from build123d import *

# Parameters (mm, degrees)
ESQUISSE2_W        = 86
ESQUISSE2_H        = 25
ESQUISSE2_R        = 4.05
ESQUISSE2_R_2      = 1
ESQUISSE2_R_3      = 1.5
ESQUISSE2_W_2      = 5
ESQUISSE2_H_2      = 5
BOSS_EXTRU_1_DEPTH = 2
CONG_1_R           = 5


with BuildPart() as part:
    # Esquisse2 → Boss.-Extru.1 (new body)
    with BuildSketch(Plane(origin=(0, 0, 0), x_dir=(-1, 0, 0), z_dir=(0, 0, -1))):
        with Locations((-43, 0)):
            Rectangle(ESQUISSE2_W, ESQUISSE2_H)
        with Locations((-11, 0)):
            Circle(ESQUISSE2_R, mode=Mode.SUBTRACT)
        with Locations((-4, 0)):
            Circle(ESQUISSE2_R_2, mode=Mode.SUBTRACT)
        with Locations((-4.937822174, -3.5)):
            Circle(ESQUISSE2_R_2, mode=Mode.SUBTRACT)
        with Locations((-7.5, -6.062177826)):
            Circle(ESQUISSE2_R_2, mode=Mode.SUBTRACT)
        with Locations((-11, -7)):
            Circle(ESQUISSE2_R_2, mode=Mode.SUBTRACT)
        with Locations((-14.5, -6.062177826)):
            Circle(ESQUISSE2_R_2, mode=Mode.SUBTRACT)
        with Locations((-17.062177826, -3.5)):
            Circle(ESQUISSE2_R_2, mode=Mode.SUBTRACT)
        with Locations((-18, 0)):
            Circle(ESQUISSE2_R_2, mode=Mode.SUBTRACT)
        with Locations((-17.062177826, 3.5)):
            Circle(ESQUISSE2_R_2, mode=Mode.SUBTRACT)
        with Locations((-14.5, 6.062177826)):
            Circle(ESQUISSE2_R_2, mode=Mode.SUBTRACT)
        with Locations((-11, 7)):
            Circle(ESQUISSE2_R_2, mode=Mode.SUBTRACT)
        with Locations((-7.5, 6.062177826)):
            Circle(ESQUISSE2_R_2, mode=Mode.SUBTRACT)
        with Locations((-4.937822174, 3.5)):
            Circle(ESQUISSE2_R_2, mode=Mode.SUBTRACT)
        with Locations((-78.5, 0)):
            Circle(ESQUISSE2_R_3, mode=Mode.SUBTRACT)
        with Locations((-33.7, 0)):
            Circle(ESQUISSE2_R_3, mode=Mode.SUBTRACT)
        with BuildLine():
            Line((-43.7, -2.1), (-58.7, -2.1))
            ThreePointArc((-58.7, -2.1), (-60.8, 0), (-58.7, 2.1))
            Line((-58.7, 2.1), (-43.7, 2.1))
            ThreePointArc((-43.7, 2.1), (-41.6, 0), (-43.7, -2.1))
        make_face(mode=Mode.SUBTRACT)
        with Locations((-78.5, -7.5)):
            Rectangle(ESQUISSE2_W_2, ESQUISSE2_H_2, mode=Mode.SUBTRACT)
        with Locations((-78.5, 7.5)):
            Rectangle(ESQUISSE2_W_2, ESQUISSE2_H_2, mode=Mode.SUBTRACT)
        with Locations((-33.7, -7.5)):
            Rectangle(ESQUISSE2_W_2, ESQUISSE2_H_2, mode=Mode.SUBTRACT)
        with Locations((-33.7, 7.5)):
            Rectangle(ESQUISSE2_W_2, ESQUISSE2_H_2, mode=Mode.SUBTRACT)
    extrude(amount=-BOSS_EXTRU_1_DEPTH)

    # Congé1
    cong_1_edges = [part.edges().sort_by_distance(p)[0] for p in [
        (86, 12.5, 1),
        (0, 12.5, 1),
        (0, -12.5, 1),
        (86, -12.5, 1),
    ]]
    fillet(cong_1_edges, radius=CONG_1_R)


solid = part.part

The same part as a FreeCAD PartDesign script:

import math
import FreeCAD as App
import Part
import Sketcher
from FreeCAD import Vector


def edges_at(feature, points):
    """Names of the edges that pass closest to the given points."""
    edges = feature.Shape.Edges
    near = lambda p: min(range(len(edges)), key=lambda i: edges[i].distToShape(Part.Vertex(*p))[0])
    return sorted({f"Edge{near(p) + 1}" for p in points})


def add_polygon(sketch, points):
    """Adds a closed chain of lines whose ends are joined by coincident constraints."""
    first, n = sketch.GeometryCount, len(points)
    for a, b in zip(points, points[1:] + points[:1]):
        sketch.addGeometry(Part.LineSegment(App.Vector(*a, 0), App.Vector(*b, 0)), False)
    for i in range(n):
        sketch.addConstraint(Sketcher.Constraint("Coincident", first + i, 2, first + (i + 1) % n, 1))

doc = App.newDocument("Part")
body = doc.addObject("PartDesign::Body", "Body")

# Sketch on XY plane
sketch1 = body.newObject("Sketcher::SketchObject", "Sketch")
sketch1.AttachmentSupport = (doc.getObject("XY_Plane"), [""])
sketch1.MapMode = "FlatFace"
add_polygon(sketch1, [(86, 12.5), (86, -12.5), (0, -12.5), (0, 12.5)])  # lines 0-3
add_polygon(sketch1, [(76, -10), (81, -10), (81, -5), (76, -5)])  # lines 4-7
add_polygon(sketch1, [(31.2, -10), (36.2, -10), (36.2, -5), (31.2, -5)])  # lines 8-11
sketch1.addGeometry(Part.Circle(Vector(14.5, -6.1, 0), Vector(0, 0, 1), 1), False)  # 12
sketch1.addGeometry(Part.Circle(Vector(11, -7, 0), Vector(0, 0, 1), 1), False)  # 13
sketch1.addGeometry(Part.Circle(Vector(7.5, -6.1, 0), Vector(0, 0, 1), 1), False)  # 14
sketch1.addGeometry(Part.Circle(Vector(17.1, -3.5, 0), Vector(0, 0, 1), 1), False)  # 15
sketch1.addGeometry(Part.Circle(Vector(4.9, -3.5, 0), Vector(0, 0, 1), 1), False)  # 16
sketch1.addGeometry(Part.Circle(Vector(78.5, 0, 0), Vector(0, 0, 1), 1.5), False)  # 17
sketch1.addGeometry(Part.ArcOfCircle(Part.Circle(Vector(43.7, 0, 0), Vector(0, 0, 1), 2.1), math.radians(90), math.radians(270)), False)  # 18
sketch1.addGeometry(Part.LineSegment(Vector(43.7, -2.1, 0), Vector(58.7, -2.1, 0)), False)  # 19
sketch1.addGeometry(Part.ArcOfCircle(Part.Circle(Vector(58.7, 0, 0), Vector(0, 0, 1), 2.1), math.radians(-90), math.radians(90)), False)  # 20
sketch1.addGeometry(Part.LineSegment(Vector(58.7, 2.1, 0), Vector(43.7, 2.1, 0)), False)  # 21
add_polygon(sketch1, [(76, 5), (81, 5), (81, 10), (76, 10)])  # lines 22-25
sketch1.addGeometry(Part.Circle(Vector(33.7, 0, 0), Vector(0, 0, 1), 1.5), False)  # 26
sketch1.addGeometry(Part.Circle(Vector(18, 0, 0), Vector(0, 0, 1), 1), False)  # 27
sketch1.addGeometry(Part.Circle(Vector(11, 0, 0), Vector(0, 0, 1), 4), False)  # 28
sketch1.addGeometry(Part.Circle(Vector(4, 0, 0), Vector(0, 0, 1), 1), False)  # 29
sketch1.addGeometry(Part.Circle(Vector(17.1, 3.5, 0), Vector(0, 0, 1), 1), False)  # 30
sketch1.addGeometry(Part.Circle(Vector(4.9, 3.5, 0), Vector(0, 0, 1), 1), False)  # 31
add_polygon(sketch1, [(31.2, 5), (36.2, 5), (36.2, 10), (31.2, 10)])  # lines 32-35
sketch1.addGeometry(Part.Circle(Vector(14.5, 6.1, 0), Vector(0, 0, 1), 1), False)  # 36
sketch1.addGeometry(Part.Circle(Vector(7.5, 6.1, 0), Vector(0, 0, 1), 1), False)  # 37
sketch1.addGeometry(Part.Circle(Vector(11, 7, 0), Vector(0, 0, 1), 1), False)  # 38
sketch1.addConstraint([
    Sketcher.Constraint("Tangent", 18, 2, 19, 1),
    Sketcher.Constraint("Tangent", 19, 2, 20, 1),
    Sketcher.Constraint("Tangent", 20, 2, 21, 1),
    Sketcher.Constraint("Tangent", 21, 2, 18, 1),
    Sketcher.Constraint("Vertical", 0),
    Sketcher.Constraint("Horizontal", 1),
    Sketcher.Constraint("Vertical", 2),
    Sketcher.Constraint("Horizontal", 3),
    Sketcher.Constraint("Horizontal", 4),
    Sketcher.Constraint("Vertical", 5),
    Sketcher.Constraint("Horizontal", 6),
    Sketcher.Constraint("Vertical", 7),
    Sketcher.Constraint("Horizontal", 8),
    Sketcher.Constraint("Vertical", 9),
    Sketcher.Constraint("Horizontal", 10),
    Sketcher.Constraint("Vertical", 11),
    Sketcher.Constraint("Horizontal", 19),
    Sketcher.Constraint("Horizontal", 21),
    Sketcher.Constraint("Horizontal", 22),
    Sketcher.Constraint("Vertical", 23),
    Sketcher.Constraint("Horizontal", 24),
    Sketcher.Constraint("Vertical", 25),
    Sketcher.Constraint("Horizontal", 32),
    Sketcher.Constraint("Vertical", 33),
    Sketcher.Constraint("Horizontal", 34),
    Sketcher.Constraint("Vertical", 35),
    Sketcher.Constraint("Equal", 12, 13),
    Sketcher.Constraint("Equal", 13, 14),
    Sketcher.Constraint("Equal", 14, 15),
    Sketcher.Constraint("Equal", 15, 16),
    Sketcher.Constraint("Equal", 17, 26),
    Sketcher.Constraint("Equal", 16, 27),
    Sketcher.Constraint("Equal", 27, 29),
    Sketcher.Constraint("Equal", 29, 30),
    Sketcher.Constraint("Equal", 30, 31),
    Sketcher.Constraint("Equal", 31, 36),
    Sketcher.Constraint("Equal", 36, 37),
    Sketcher.Constraint("Equal", 37, 38),
    Sketcher.Constraint("Symmetric", 1, 2, 2, 2, -1, 1),
    Sketcher.Constraint("Symmetric", 15, 3, 30, 3, -1),
    Sketcher.Constraint("Symmetric", 16, 3, 31, 3, -1),
    Sketcher.Constraint("Symmetric", 12, 3, 36, 3, -1),
    Sketcher.Constraint("Symmetric", 14, 3, 37, 3, -1),
    Sketcher.Constraint("Symmetric", 13, 3, 38, 3, -1),
    Sketcher.Constraint("Symmetric", 5, 2, 22, 2, -1),
    Sketcher.Constraint("Symmetric", 7, 2, 24, 2, -1),
    Sketcher.Constraint("Symmetric", 9, 2, 32, 2, -1),
    Sketcher.Constraint("Symmetric", 11, 2, 34, 2, -1),
    Sketcher.Constraint("PointOnObject", 17, 3, -1),
    Sketcher.Constraint("PointOnObject", 18, 3, -1),
    Sketcher.Constraint("PointOnObject", 26, 3, -1),
    Sketcher.Constraint("PointOnObject", 27, 3, -1),
    Sketcher.Constraint("PointOnObject", 28, 3, -1),
    Sketcher.Constraint("PointOnObject", 29, 3, -1),
    Sketcher.Constraint("Horizontal", 12, 3, 14, 3),
    Sketcher.Constraint("Horizontal", 15, 3, 16, 3),
    Sketcher.Constraint("Horizontal", 7, 2, 8, 2),
    Sketcher.Constraint("Horizontal", 6, 2, 9, 2),
    Sketcher.Constraint("Vertical", 13, 3, 28, 3),
    Sketcher.Constraint("Equal", 6, 8),
    Sketcher.Constraint("Equal", 34, 5),
    Sketcher.Constraint("Diameter", 12, 2.0),
    Sketcher.Constraint("Diameter", 17, 3.0),
    Sketcher.Constraint("Diameter", 28, 8.1),
    Sketcher.Constraint("Radius", 18, 2.1),
    Sketcher.Constraint("DistanceX", 1, 2, 1, 1, 86.0),
    Sketcher.Constraint("DistanceX", 4, 1, 4, 2, 5.0),
    Sketcher.Constraint("DistanceX", 19, 1, 19, 2, 15.0),
    Sketcher.Constraint("DistanceY", 0, 2, 0, 1, 25.0),
    Sketcher.Constraint("DistanceX", -1, 1, 13, 3, 11.0),
    Sketcher.Constraint("DistanceY", 13, 3, -1, 1, 7.0),
    Sketcher.Constraint("DistanceX", -1, 1, 27, 3, 18.0),
    Sketcher.Constraint("DistanceX", -1, 1, 29, 3, 4.0),
    Sketcher.Constraint("DistanceX", -1, 1, 4, 2, 81.0),
    Sketcher.Constraint("DistanceY", 4, 2, -1, 1, 10.0),
    Sketcher.Constraint("DistanceX", 14, 3, 12, 3, 7.0),
    Sketcher.Constraint("DistanceX", 12, 3, 17, 3, 64.0),
    Sketcher.Constraint("DistanceX", 26, 3, 18, 3, 10.0),
    Sketcher.Constraint("DistanceY", 15, 3, 30, 3, 7.0),
    Sketcher.Constraint("DistanceX", -1, 1, 12, 3, 14.5),
    Sketcher.Constraint("DistanceX", -1, 1, 18, 3, 43.7),
    Sketcher.Constraint("DistanceX", -1, 1, 8, 2, 36.2),
    Sketcher.Constraint("DistanceY", 12, 3, -1, 1, 6.062178),
    Sketcher.Constraint("DistanceX", -1, 1, 15, 3, 17.062178),
    Sketcher.Constraint("DistanceX", -1, 1, 16, 3, 4.937822),
])
pad1 = body.newObject("PartDesign::Pad", "Pad")
pad1.Profile = sketch1
pad1.Length = 2
doc.recompute()

fillet = body.newObject("PartDesign::Fillet", "Fillet")
fillet.Base = (pad1, edges_at(pad1, [
    (86, 12.5, 1),
    (0, 12.5, 1),
    (0, -12.5, 1),
    (86, -12.5, 1),
]))
fillet.Radius = 5

doc.recompute()
